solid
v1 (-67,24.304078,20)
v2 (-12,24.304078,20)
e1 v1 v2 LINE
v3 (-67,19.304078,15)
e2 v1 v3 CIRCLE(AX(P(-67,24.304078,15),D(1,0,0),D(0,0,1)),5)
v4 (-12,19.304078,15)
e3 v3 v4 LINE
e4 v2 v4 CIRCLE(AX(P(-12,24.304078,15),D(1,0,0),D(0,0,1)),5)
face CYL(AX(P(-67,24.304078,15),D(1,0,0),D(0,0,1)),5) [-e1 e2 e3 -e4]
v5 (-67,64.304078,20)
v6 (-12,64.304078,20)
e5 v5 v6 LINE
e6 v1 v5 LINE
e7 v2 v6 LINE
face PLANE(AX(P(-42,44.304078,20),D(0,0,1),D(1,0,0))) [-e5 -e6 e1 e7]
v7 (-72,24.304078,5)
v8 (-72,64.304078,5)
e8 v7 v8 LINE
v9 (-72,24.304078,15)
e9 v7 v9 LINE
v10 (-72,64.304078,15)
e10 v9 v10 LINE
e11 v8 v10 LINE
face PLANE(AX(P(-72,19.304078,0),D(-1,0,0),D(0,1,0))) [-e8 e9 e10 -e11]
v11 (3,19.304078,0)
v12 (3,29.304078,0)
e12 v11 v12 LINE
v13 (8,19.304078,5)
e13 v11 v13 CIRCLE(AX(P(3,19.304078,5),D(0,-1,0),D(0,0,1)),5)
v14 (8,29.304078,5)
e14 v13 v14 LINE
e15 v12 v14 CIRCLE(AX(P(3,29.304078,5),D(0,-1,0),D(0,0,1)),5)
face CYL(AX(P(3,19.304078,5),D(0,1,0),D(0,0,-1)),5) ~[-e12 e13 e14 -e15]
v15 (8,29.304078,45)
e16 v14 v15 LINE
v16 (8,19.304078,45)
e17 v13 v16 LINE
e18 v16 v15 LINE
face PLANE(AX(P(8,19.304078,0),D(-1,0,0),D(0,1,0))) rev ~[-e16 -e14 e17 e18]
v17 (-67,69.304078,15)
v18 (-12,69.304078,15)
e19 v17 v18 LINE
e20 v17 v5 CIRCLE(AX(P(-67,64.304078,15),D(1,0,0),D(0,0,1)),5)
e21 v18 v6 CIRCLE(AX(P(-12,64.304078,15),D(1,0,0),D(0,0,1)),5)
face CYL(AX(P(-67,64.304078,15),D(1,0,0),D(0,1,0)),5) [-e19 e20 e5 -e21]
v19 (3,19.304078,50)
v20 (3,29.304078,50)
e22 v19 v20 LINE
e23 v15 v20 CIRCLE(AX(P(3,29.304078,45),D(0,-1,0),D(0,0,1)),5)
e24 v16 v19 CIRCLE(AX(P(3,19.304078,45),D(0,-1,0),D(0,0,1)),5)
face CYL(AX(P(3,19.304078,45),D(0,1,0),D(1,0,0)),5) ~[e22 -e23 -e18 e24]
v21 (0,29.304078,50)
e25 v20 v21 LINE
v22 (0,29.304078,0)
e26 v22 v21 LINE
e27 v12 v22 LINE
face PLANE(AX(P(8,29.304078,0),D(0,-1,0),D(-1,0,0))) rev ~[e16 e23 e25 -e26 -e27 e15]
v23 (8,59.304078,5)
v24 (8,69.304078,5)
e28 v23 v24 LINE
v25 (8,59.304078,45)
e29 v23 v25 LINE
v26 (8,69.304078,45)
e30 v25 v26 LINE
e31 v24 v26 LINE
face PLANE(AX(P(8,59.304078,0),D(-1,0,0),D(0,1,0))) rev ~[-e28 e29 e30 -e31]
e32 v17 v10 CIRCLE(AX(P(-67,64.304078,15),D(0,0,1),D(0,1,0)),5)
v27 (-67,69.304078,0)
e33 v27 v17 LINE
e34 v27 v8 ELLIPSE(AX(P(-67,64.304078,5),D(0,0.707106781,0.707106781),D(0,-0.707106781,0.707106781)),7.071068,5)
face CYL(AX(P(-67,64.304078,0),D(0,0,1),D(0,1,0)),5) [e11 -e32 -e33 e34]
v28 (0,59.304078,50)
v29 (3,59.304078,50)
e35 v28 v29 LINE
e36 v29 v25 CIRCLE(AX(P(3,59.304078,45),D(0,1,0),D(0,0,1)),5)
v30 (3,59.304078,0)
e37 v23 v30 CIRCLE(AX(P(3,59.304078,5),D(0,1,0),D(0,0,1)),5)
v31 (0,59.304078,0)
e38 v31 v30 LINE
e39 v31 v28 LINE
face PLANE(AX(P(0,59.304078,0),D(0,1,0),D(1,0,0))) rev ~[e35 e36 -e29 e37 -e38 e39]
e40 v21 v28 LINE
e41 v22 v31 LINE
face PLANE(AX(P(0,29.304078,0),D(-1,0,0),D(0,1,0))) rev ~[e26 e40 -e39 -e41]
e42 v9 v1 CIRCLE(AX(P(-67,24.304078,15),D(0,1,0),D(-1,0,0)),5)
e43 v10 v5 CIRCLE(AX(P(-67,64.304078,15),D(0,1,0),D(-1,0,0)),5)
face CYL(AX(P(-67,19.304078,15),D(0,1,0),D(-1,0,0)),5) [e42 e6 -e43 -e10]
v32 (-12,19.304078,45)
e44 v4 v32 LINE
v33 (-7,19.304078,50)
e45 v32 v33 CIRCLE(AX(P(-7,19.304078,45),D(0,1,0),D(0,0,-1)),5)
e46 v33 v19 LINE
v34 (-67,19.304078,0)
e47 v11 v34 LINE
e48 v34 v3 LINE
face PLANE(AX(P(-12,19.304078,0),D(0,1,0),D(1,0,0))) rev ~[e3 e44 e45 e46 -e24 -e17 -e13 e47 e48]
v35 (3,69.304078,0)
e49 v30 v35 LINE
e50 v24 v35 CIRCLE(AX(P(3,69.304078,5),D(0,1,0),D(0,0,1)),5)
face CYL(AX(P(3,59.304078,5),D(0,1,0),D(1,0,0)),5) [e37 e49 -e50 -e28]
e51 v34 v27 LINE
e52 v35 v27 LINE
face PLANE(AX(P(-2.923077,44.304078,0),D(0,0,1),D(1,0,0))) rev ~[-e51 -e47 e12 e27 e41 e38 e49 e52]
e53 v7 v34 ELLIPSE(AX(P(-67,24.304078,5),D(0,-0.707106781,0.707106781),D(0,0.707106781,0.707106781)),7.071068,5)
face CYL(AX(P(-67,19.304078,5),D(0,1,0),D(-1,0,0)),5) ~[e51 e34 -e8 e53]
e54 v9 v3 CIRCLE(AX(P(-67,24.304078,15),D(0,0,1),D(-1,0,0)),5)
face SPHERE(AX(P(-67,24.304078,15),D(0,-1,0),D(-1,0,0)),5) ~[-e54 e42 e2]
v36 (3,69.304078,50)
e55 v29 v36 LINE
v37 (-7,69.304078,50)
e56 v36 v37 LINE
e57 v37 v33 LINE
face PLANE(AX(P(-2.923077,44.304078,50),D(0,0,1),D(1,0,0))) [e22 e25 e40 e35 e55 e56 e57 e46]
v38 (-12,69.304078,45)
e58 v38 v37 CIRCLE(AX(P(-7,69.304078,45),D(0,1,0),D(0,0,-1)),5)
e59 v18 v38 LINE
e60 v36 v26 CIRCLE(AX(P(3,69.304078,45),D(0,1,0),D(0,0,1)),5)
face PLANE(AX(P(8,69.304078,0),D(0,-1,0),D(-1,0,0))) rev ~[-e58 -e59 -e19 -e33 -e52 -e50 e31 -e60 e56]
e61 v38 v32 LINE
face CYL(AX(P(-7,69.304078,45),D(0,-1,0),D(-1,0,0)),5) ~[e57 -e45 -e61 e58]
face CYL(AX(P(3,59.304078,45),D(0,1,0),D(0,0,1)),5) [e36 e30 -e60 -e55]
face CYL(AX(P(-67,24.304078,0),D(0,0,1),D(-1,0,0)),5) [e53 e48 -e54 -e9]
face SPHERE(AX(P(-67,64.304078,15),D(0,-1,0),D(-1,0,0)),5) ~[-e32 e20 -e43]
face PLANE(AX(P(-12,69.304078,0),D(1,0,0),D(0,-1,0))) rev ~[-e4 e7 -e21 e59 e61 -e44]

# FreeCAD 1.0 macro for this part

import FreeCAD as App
import Part
import Sketcher

V = App.Vector


def edges_at(feature, points):
    """Names of the edges that pass closest to the given points."""
    edges = feature.Shape.Edges
    near = lambda p: min(range(len(edges)), key=lambda i: edges[i].distToShape(Part.Vertex(*p))[0])
    return sorted({f"Edge{near(p) + 1}" for p in points})

doc = App.newDocument("Part")
params = doc.addObject("Spreadsheet::Sheet", "Params")
for row, (alias, value) in enumerate([
    ("sketch1_width", "60 mm"),
    ("sketch1_height", "50 mm"),
    ("pad1_length", "20 mm"),
    ("sketch2_width", "20 mm"),
    ("sketch2_width2", "8 mm"),
    ("sketch2_height", "50 mm"),
    ("sketch2_height2", "10 mm"),
    ("pad2_length", "50 mm"),
    ("fillet_radius", "5 mm"),
    ("fillet2_radius", "5 mm"),
    ("fillet3_radius", "5 mm"),
    ("fillet4_radius", "5 mm"),
    ("fillet5_radius", "5 mm"),
], start=1):
    params.set(f"A{row}", alias)
    params.set(f"B{row}", "=" + value)
    params.setAlias(f"B{row}", alias)

body = doc.addObject("PartDesign::Body", "Body")

sketch1 = doc.addObject("Sketcher::SketchObject", "Sketch")
body.addObject(sketch1)
sketch1.AttachmentSupport = (doc.XY_Plane, [""])
sketch1.MapMode = "FlatFace"
sketch1.addGeometry(Part.LineSegment(V(-72, 69, 0), V(-72, 19, 0)), False)
sketch1.addGeometry(Part.LineSegment(V(-72, 19, 0), V(-12, 19, 0)), False)
sketch1.addGeometry(Part.LineSegment(V(-12, 19, 0), V(-12, 69, 0)), False)
sketch1.addGeometry(Part.LineSegment(V(-12, 69, 0), V(-72, 69, 0)), False)
sketch1.addConstraint(Sketcher.Constraint("Coincident", 0, 2, 1, 1))
sketch1.addConstraint(Sketcher.Constraint("Coincident", 1, 2, 2, 1))
sketch1.addConstraint(Sketcher.Constraint("Coincident", 2, 2, 3, 1))
sketch1.addConstraint(Sketcher.Constraint("Coincident", 3, 2, 0, 1))
sketch1.addConstraint(Sketcher.Constraint("Vertical", 0))
sketch1.addConstraint(Sketcher.Constraint("Horizontal", 1))
sketch1.addConstraint(Sketcher.Constraint("Vertical", 2))
sketch1.addConstraint(Sketcher.Constraint("Horizontal", 3))
sketch1.addConstraint(Sketcher.Constraint("DistanceX", 1, 1, 1, 2, 60.0))
sketch1.addConstraint(Sketcher.Constraint("DistanceY", 0, 2, 0, 1, 50.0))
sketch1.addConstraint(Sketcher.Constraint("DistanceX", 0, 2, -1, 1, 72.0))
sketch1.addConstraint(Sketcher.Constraint("DistanceY", -1, 1, 0, 2, 19.304078))
sketch1.setExpression("Constraints[8]", "Params.sketch1_width")
sketch1.setExpression("Constraints[9]", "Params.sketch1_height")
pad1 = doc.addObject("PartDesign::Pad", "Pad")
body.addObject(pad1)
pad1.Profile = sketch1
pad1.setExpression("Length", "Params.pad1_length")

sketch2 = doc.addObject("Sketcher::SketchObject", "Sketch001")
body.addObject(sketch2)
sketch2.AttachmentSupport = (doc.XY_Plane, [""])
sketch2.MapMode = "FlatFace"
sketch2.addGeometry(Part.LineSegment(V(8, 69, 0), V(-12, 69, 0)), False)
sketch2.addGeometry(Part.LineSegment(V(-12, 69, 0), V(-12, 19, 0)), False)
sketch2.addGeometry(Part.LineSegment(V(-12, 19, 0), V(8, 19, 0)), False)
sketch2.addGeometry(Part.LineSegment(V(8, 19, 0), V(8, 29, 0)), False)
sketch2.addGeometry(Part.LineSegment(V(8, 29, 0), V(0, 29, 0)), False)
sketch2.addGeometry(Part.LineSegment(V(0, 29, 0), V(0, 59, 0)), False)
sketch2.addGeometry(Part.LineSegment(V(0, 59, 0), V(8, 59, 0)), False)
sketch2.addGeometry(Part.LineSegment(V(8, 59, 0), V(8, 69, 0)), False)
sketch2.addConstraint(Sketcher.Constraint("Coincident", 0, 2, 1, 1))
sketch2.addConstraint(Sketcher.Constraint("Coincident", 1, 2, 2, 1))
sketch2.addConstraint(Sketcher.Constraint("Coincident", 2, 2, 3, 1))
sketch2.addConstraint(Sketcher.Constraint("Coincident", 3, 2, 4, 1))
sketch2.addConstraint(Sketcher.Constraint("Coincident", 4, 2, 5, 1))
sketch2.addConstraint(Sketcher.Constraint("Coincident", 5, 2, 6, 1))
sketch2.addConstraint(Sketcher.Constraint("Coincident", 6, 2, 7, 1))
sketch2.addConstraint(Sketcher.Constraint("Coincident", 7, 2, 0, 1))
sketch2.addConstraint(Sketcher.Constraint("Horizontal", 0))
sketch2.addConstraint(Sketcher.Constraint("Vertical", 1))
sketch2.addConstraint(Sketcher.Constraint("Horizontal", 2))
sketch2.addConstraint(Sketcher.Constraint("Vertical", 3))
sketch2.addConstraint(Sketcher.Constraint("Horizontal", 4))
sketch2.addConstraint(Sketcher.Constraint("Vertical", 5))
sketch2.addConstraint(Sketcher.Constraint("Horizontal", 6))
sketch2.addConstraint(Sketcher.Constraint("Vertical", 7))
sketch2.addConstraint(Sketcher.Constraint("PointOnObject", 4, 2, -2))
sketch2.addConstraint(Sketcher.Constraint("Vertical", 3, 2, 6, 2))
sketch2.addConstraint(Sketcher.Constraint("Equal", 3, 7))
sketch2.addConstraint(Sketcher.Constraint("DistanceX", 0, 2, 0, 1, 20.0))
sketch2.addConstraint(Sketcher.Constraint("DistanceX", 4, 2, 4, 1, 8.0))
sketch2.addConstraint(Sketcher.Constraint("DistanceY", 1, 2, 1, 1, 50.0))
sketch2.addConstraint(Sketcher.Constraint("DistanceY", 3, 1, 3, 2, 10.0))
sketch2.addConstraint(Sketcher.Constraint("DistanceY", -1, 1, 0, 2, 69.304078))
sketch2.setExpression("Constraints[19]", "Params.sketch2_width")
sketch2.setExpression("Constraints[20]", "Params.sketch2_width2")
sketch2.setExpression("Constraints[21]", "Params.sketch2_height")
sketch2.setExpression("Constraints[22]", "Params.sketch2_height2")
pad2 = doc.addObject("PartDesign::Pad", "Pad001")
body.addObject(pad2)
pad2.Profile = sketch2
pad2.setExpression("Length", "Params.pad2_length")
doc.recompute()

fillet = doc.addObject("PartDesign::Fillet", "Fillet")
body.addObject(fillet)
fillet.Base = (pad2, edges_at(pad2, [(-72, 44.304, 20)]))
fillet.setExpression("Radius", "Params.fillet_radius")
doc.recompute()

fillet2 = doc.addObject("PartDesign::Fillet", "Fillet001")
body.addObject(fillet2)
fillet2.Base = (fillet, edges_at(fillet, [(-12, 44.304, 50)]))
fillet2.setExpression("Radius", "Params.fillet2_radius")
doc.recompute()

fillet3 = doc.addObject("PartDesign::Fillet", "Fillet002")
body.addObject(fillet3)
fillet3.Base = (fillet2, edges_at(fillet2, [
    (-72, 69.304, 7.5),
    (-72, 44.304, 15),
    (-72, 44.304, 0),
    (-72, 19.304, 7.5),
]))
fillet3.setExpression("Radius", "Params.fillet3_radius")
doc.recompute()

fillet4 = doc.addObject("PartDesign::Fillet", "Fillet003")
body.addObject(fillet4)
fillet4.Base = (fillet3, edges_at(fillet3, [(8, 24.304, 50), (8, 64.304, 50)]))
fillet4.setExpression("Radius", "Params.fillet4_radius")
doc.recompute()

fillet5 = doc.addObject("PartDesign::Fillet", "Fillet004")
body.addObject(fillet5)
fillet5.Base = (fillet4, edges_at(fillet4, [(8, 24.304, 0), (8, 64.304, 0)]))
fillet5.setExpression("Radius", "Params.fillet5_radius")

doc.recompute()
